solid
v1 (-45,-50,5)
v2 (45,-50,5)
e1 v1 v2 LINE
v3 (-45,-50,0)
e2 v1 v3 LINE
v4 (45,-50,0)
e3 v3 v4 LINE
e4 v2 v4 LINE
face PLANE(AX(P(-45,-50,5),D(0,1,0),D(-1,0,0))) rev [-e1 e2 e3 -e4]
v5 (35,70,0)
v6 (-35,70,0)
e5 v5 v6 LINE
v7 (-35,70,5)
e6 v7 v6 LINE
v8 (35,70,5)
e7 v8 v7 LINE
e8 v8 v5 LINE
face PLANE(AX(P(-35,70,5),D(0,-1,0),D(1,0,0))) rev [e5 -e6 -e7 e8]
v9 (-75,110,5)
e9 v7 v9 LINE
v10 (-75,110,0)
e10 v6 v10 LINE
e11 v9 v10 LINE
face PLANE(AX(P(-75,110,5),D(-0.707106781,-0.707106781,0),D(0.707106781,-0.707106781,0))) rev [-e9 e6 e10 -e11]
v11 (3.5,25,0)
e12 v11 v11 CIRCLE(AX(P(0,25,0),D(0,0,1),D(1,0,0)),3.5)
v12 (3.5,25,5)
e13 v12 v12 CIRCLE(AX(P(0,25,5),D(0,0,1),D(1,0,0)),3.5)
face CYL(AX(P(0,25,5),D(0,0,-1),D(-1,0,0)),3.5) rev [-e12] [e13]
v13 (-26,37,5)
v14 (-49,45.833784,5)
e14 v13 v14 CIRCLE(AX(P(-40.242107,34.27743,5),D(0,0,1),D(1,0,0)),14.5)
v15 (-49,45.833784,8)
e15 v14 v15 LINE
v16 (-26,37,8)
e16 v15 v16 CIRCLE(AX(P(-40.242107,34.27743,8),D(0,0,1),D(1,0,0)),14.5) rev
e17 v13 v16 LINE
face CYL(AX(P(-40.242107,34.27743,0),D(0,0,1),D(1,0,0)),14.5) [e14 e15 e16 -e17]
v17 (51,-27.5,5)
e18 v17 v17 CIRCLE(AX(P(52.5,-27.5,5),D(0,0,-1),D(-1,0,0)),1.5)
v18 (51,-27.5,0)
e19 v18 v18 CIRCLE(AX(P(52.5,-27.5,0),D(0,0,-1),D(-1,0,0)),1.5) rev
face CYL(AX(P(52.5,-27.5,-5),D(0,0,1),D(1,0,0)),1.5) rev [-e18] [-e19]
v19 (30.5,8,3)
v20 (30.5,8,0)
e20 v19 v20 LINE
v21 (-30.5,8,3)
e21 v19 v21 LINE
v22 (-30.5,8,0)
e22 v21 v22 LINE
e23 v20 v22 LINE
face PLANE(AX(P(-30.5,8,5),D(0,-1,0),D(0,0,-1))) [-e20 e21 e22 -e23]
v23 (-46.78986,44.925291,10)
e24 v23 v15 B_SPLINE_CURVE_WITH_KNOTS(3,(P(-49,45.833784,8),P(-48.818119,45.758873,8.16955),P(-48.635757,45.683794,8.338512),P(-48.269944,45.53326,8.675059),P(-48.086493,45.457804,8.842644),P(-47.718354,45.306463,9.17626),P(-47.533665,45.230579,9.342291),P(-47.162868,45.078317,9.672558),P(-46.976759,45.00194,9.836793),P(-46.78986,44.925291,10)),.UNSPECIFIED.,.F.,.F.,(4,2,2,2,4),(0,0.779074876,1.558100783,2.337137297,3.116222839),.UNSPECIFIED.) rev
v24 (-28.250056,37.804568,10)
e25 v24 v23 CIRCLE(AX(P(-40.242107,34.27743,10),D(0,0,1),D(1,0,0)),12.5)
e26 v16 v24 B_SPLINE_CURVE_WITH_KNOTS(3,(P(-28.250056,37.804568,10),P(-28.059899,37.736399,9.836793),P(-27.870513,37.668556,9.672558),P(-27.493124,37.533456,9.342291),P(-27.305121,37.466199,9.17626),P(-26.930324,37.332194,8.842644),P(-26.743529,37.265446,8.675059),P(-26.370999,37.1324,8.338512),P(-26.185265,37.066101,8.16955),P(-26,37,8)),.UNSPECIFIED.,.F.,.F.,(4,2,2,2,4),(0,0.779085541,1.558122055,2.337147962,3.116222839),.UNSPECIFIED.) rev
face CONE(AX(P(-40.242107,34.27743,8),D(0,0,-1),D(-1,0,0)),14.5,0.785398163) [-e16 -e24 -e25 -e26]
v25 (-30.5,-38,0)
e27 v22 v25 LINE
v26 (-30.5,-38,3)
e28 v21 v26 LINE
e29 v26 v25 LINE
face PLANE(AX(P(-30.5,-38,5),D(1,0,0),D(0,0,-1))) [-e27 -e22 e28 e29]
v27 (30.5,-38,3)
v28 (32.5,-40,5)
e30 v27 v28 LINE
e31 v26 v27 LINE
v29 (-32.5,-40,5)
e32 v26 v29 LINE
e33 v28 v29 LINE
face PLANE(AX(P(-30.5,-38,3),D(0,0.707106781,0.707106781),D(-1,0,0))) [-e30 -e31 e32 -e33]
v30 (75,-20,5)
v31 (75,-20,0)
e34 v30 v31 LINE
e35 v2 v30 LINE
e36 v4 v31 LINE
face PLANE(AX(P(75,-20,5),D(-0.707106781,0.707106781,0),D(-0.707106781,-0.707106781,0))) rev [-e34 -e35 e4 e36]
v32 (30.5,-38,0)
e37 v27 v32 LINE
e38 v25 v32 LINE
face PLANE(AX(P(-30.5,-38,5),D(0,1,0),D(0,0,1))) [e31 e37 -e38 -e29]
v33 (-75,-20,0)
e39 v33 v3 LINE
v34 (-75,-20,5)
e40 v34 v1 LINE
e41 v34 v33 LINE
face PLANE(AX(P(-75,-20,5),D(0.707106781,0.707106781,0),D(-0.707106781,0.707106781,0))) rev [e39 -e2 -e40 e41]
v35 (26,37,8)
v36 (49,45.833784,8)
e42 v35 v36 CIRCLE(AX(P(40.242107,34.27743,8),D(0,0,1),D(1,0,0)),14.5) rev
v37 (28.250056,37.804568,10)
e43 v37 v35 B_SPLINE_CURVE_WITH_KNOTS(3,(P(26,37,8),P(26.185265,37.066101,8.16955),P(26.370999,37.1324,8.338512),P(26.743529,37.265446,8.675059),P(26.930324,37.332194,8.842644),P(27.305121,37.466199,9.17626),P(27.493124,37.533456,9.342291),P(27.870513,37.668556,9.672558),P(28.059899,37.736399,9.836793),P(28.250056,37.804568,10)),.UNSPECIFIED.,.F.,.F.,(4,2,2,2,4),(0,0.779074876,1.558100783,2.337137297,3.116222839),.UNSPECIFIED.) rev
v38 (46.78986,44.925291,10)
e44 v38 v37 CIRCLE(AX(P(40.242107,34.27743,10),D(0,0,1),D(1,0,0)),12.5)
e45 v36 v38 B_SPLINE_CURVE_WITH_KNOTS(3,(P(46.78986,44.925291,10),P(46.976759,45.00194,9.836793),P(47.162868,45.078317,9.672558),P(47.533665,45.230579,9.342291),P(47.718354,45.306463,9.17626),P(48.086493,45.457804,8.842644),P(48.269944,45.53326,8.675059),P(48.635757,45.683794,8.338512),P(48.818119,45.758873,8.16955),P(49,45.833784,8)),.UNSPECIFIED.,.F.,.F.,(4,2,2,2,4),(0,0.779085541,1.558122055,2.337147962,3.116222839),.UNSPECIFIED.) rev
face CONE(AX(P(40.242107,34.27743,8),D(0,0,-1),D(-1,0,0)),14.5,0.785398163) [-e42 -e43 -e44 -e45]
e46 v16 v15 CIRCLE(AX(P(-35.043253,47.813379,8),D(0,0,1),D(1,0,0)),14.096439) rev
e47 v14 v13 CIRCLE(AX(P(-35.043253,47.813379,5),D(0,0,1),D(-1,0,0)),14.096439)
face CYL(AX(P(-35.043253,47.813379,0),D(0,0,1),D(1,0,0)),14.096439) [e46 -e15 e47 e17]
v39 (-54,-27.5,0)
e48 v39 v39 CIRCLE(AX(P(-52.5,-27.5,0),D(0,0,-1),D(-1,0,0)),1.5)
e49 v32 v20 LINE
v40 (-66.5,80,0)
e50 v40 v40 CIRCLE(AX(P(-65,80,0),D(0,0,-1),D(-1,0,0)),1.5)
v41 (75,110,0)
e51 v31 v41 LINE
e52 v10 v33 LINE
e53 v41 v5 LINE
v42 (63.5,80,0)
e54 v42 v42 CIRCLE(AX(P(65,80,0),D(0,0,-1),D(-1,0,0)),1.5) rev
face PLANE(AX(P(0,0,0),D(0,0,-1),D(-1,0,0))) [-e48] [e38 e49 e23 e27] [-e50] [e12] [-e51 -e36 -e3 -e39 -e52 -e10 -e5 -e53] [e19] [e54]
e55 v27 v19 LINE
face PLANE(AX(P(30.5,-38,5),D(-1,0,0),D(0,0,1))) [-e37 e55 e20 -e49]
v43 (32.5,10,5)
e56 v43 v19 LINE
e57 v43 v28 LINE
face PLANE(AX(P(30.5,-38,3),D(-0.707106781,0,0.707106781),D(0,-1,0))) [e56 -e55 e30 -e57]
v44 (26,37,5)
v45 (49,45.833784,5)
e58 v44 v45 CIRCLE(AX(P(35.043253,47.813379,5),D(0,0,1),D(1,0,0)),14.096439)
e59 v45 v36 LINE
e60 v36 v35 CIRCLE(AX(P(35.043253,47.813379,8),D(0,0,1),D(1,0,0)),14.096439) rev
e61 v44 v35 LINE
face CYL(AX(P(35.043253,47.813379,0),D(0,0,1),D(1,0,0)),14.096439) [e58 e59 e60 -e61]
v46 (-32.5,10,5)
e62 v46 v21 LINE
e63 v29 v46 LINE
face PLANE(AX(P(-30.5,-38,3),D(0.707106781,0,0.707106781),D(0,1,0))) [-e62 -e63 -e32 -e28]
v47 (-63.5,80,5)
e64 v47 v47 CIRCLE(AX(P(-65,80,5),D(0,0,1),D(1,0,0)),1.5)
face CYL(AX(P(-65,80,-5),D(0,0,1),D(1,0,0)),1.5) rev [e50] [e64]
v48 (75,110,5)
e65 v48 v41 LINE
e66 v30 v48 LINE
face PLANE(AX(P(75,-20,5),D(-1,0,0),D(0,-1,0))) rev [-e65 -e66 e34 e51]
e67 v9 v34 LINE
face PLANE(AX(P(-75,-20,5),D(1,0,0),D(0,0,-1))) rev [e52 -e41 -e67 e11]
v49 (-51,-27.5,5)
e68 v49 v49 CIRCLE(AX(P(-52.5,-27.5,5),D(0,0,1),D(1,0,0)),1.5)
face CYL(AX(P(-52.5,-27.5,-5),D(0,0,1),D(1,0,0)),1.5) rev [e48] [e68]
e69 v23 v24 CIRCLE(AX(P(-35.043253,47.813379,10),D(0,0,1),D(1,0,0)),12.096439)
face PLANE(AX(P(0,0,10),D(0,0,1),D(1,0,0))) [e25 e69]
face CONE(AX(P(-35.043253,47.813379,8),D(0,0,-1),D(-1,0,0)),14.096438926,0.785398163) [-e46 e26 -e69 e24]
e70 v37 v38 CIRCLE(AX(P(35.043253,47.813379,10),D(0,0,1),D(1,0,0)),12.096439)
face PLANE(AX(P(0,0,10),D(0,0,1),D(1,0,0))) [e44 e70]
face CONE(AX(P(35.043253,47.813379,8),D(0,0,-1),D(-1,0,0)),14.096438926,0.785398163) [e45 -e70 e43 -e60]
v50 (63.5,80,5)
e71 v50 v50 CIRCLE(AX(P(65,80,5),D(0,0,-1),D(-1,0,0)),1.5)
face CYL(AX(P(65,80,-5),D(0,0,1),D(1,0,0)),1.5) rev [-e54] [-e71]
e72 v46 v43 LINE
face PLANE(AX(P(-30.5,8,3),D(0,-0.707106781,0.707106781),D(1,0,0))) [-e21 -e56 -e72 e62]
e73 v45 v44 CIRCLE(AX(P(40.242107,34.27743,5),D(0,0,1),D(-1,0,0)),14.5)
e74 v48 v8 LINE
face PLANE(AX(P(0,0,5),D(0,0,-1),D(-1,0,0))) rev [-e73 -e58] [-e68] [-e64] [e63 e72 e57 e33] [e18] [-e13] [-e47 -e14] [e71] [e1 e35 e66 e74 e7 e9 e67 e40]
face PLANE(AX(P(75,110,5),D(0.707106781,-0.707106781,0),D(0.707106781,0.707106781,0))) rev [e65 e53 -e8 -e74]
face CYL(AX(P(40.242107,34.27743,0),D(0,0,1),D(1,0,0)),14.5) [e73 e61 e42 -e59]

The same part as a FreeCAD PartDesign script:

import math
import FreeCAD as App
import Part
import Sketcher
from FreeCAD import Vector


def edges_at(feature, points):
    """Names of the edges that pass closest to the given points."""
    edges = feature.Shape.Edges
    near = lambda p: min(range(len(edges)), key=lambda i: edges[i].distToShape(Part.Vertex(*p))[0])
    return sorted({f"Edge{near(p) + 1}" for p in points})


def add_polygon(sketch, points):
    """Adds a closed chain of lines whose ends are joined by coincident constraints."""
    first, n = sketch.GeometryCount, len(points)
    for a, b in zip(points, points[1:] + points[:1]):
        sketch.addGeometry(Part.LineSegment(App.Vector(*a, 0), App.Vector(*b, 0)), False)
    for i in range(n):
        sketch.addConstraint(Sketcher.Constraint("Coincident", first + i, 2, first + (i + 1) % n, 1))

doc = App.newDocument("Part")
body = doc.addObject("PartDesign::Body", "Body")

# Sketch on XY plane
sketch1 = doc.addObject("Sketcher::SketchObject", "Sketch")
body.addObject(sketch1)
sketch1.AttachmentSupport = (doc.XY_Plane, [""])
sketch1.MapMode = "FlatFace"
add_polygon(sketch1, [(-75, 110), (-75, -20), (-45, -50), (45, -50), (75, -20), (75, 110), (35, 70), (-35, 70)])  # lines 0-7
add_polygon(sketch1, [(-30.5, -38), (-30.5, 8), (30.5, 8), (30.5, -38)])  # lines 8-11
sketch1.addGeometry(Part.Circle(Vector(0, 25, 0), Vector(0, 0, 1), 3.5), False)  # 12
sketch1.addGeometry(Part.ArcOfCircle(Part.Circle(Vector(40.2, 34.3, 0), Vector(0, 0, 1), 14.5), math.radians(53), math.radians(169)), False)  # 13
sketch1.addGeometry(Part.ArcOfCircle(Part.Circle(Vector(35, 47.8, 0), Vector(0, 0, 1), 14.1), math.radians(-130), math.radians(-8)), False)  # 14
sketch1.addGeometry(Part.ArcOfCircle(Part.Circle(Vector(-35, 47.8, 0), Vector(0, 0, 1), 14.1), math.radians(-172), math.radians(-50)), False)  # 15
sketch1.addGeometry(Part.ArcOfCircle(Part.Circle(Vector(-40.2, 34.3, 0), Vector(0, 0, 1), 14.5), math.radians(11), math.radians(127)), False)  # 16
sketch1.addConstraint([
    Sketcher.Constraint("Coincident", 13, 1, 14, 2),
    Sketcher.Constraint("Coincident", 14, 1, 13, 2),
    Sketcher.Constraint("Coincident", 15, 1, 16, 2),
    Sketcher.Constraint("Coincident", 16, 1, 15, 2),
    Sketcher.Constraint("Vertical", 0),
    Sketcher.Constraint("Horizontal", 2),
    Sketcher.Constraint("Vertical", 4),
    Sketcher.Constraint("Horizontal", 6),
    Sketcher.Constraint("Vertical", 8),
    Sketcher.Constraint("Horizontal", 9),
    Sketcher.Constraint("Vertical", 10),
    Sketcher.Constraint("Horizontal", 11),
    Sketcher.Constraint("Equal", 14, 15),
    Sketcher.Constraint("Equal", 13, 16),
    Sketcher.Constraint("Symmetric", 14, 3, 15, 3, -2),
    Sketcher.Constraint("Symmetric", 13, 3, 16, 3, -2),
    Sketcher.Constraint("Symmetric", 0, 2, 3, 2, -2),
    Sketcher.Constraint("PointOnObject", 12, 3, -2),
    Sketcher.Constraint("Perpendicular", 1, 3),
    Sketcher.Constraint("Parallel", 3, 5),
    Sketcher.Constraint("Perpendicular", 5, 7),
    Sketcher.Constraint("Horizontal", 4, 2, 7, 2),
    Sketcher.Constraint("Equal", 1, 3),
    Sketcher.Constraint("Diameter", 12, 7.0),
    Sketcher.Constraint("Radius", 13, 14.5),
    Sketcher.Constraint("DistanceX", 2, 1, 2, 2, 90.0),
    Sketcher.Constraint("DistanceX", 6, 2, 6, 1, 70.0),
    Sketcher.Constraint("DistanceX", 9, 1, 9, 2, 61.0),
    Sketcher.Constraint("DistanceY", 0, 2, 0, 1, 130.0),
    Sketcher.Constraint("DistanceY", 8, 1, 8, 2, 46.0),
    Sketcher.Constraint("DistanceY", -1, 1, 12, 3, 25.0),
    Sketcher.Constraint("DistanceX", 0, 2, -1, 1, 75.0),
    Sketcher.Constraint("DistanceY", 0, 2, -1, 1, 20.0),
    Sketcher.Constraint("DistanceY", -1, 1, 8, 2, 8.0),
    Sketcher.Constraint("DistanceX", -1, 1, 13, 1, 49.0),
    Sketcher.Constraint("DistanceX", -1, 1, 14, 1, 26.0),
    Sketcher.Constraint("DistanceY", -1, 1, 14, 1, 37.0),
    Sketcher.Constraint("DistanceX", 8, 2, -1, 1, 30.5),
    Sketcher.Constraint("Radius", 14, 14.096439),
    Sketcher.Constraint("DistanceY", -1, 1, 13, 3, 34.27743),
])
pad1 = doc.addObject("PartDesign::Pad", "Pad")
body.addObject(pad1)
pad1.Profile = sketch1
pad1.Length = 5

# Sketch on XY plane
sketch2 = doc.addObject("Sketcher::SketchObject", "Sketch001")
body.addObject(sketch2)
sketch2.AttachmentSupport = (doc.XY_Plane, [""])
sketch2.MapMode = "FlatFace"
sketch2.AttachmentOffset = App.Placement(Vector(0, 0, 5), App.Rotation())
sketch2.addGeometry([
    Part.ArcOfCircle(Part.Circle(Vector(-35, 48, 0), Vector(0, 0, 1), 14), math.radians(-172), math.radians(-50)),
    Part.ArcOfCircle(Part.Circle(Vector(-40, 34, 0), Vector(0, 0, 1), 14), math.radians(11), math.radians(127)),
    Part.ArcOfCircle(Part.Circle(Vector(40, 34, 0), Vector(0, 0, 1), 14), math.radians(53), math.radians(169)),
    Part.ArcOfCircle(Part.Circle(Vector(35, 48, 0), Vector(0, 0, 1), 14), math.radians(-130), math.radians(-8)),
], False)
sketch2.addConstraint([
    Sketcher.Constraint("Coincident", 0, 1, 1, 2),
    Sketcher.Constraint("Coincident", 1, 1, 0, 2),
    Sketcher.Constraint("Coincident", 2, 1, 3, 2),
    Sketcher.Constraint("Coincident", 3, 1, 2, 2),
    Sketcher.Constraint("Equal", 1, 2),
    Sketcher.Constraint("Equal", 0, 3),
    Sketcher.Constraint("Symmetric", 1, 3, 2, 3, -2),
    Sketcher.Constraint("Symmetric", 0, 3, 3, 3, -2),
    Sketcher.Constraint("Radius", 1, 14.5),
    Sketcher.Constraint("DistanceX", 0, 1, -1, 1, 49.0),
    Sketcher.Constraint("DistanceX", 1, 1, -1, 1, 26.0),
    Sketcher.Constraint("DistanceY", -1, 1, 1, 1, 37.0),
    Sketcher.Constraint("Radius", 0, 14.096439),
    Sketcher.Constraint("DistanceY", -1, 1, 0, 3, 47.813379),
])
pad2 = doc.addObject("PartDesign::Pad", "Pad001")
body.addObject(pad2)
pad2.Profile = sketch2
pad2.Type = "TwoLengths"
pad2.Length = 5
pad2.Length2 = 5
doc.recompute()

chamfer = doc.addObject("PartDesign::Chamfer", "Chamfer")
body.addObject(chamfer)
chamfer.Base = (pad2, edges_at(pad2, [
    (-35.043, 47.813, 10),
    (-40.097, 34.654, 10),
    (40.097, 34.654, 10),
    (35.043, 47.813, 10),
]))
chamfer.Size = 2
doc.recompute()

chamfer2 = doc.addObject("PartDesign::Chamfer", "Chamfer001")
body.addObject(chamfer2)
chamfer2.Base = (chamfer, edges_at(chamfer, [
    (30.5, -15, 5),
    (0, 8, 5),
    (-30.5, -15, 5),
    (0, -38, 5),
]))
chamfer2.Size = 2

# Sketch on XY plane
sketch3 = doc.addObject("Sketcher::SketchObject", "Sketch002")
body.addObject(sketch3)
sketch3.AttachmentSupport = (doc.XY_Plane, [""])
sketch3.MapMode = "FlatFace"
sketch3.AttachmentOffset = App.Placement(Vector(0, 0, 5), App.Rotation())
sketch3.addGeometry([
    Part.Circle(Vector(-65, 80, 0), Vector(0, 0, 1), 1.5),
    Part.Circle(Vector(-52.5, -27.5, 0), Vector(0, 0, 1), 1.5),
    Part.Circle(Vector(52.5, -27.5, 0), Vector(0, 0, 1), 1.5),
    Part.Circle(Vector(65, 80, 0), Vector(0, 0, 1), 1.5),
], False)
sketch3.addConstraint([
    Sketcher.Constraint("Equal", 0, 1),
    Sketcher.Constraint("Equal", 1, 2),
    Sketcher.Constraint("Equal", 2, 3),
    Sketcher.Constraint("Symmetric", 1, 3, 2, 3, -2),
    Sketcher.Constraint("Symmetric", 0, 3, 3, 3, -2),
    Sketcher.Constraint("Diameter", 0, 3.0),
    Sketcher.Constraint("DistanceX", 0, 3, -1, 1, 65.0),
    Sketcher.Constraint("DistanceY", -1, 1, 0, 3, 80.0),
    Sketcher.Constraint("DistanceX", 1, 3, 2, 3, 105.0),
    Sketcher.Constraint("DistanceY", 1, 3, -1, 1, 27.5),
])
pocket1 = doc.addObject("PartDesign::Pocket", "Pocket")
body.addObject(pocket1)
pocket1.Profile = sketch3
pocket1.Length = 10

doc.recompute()
